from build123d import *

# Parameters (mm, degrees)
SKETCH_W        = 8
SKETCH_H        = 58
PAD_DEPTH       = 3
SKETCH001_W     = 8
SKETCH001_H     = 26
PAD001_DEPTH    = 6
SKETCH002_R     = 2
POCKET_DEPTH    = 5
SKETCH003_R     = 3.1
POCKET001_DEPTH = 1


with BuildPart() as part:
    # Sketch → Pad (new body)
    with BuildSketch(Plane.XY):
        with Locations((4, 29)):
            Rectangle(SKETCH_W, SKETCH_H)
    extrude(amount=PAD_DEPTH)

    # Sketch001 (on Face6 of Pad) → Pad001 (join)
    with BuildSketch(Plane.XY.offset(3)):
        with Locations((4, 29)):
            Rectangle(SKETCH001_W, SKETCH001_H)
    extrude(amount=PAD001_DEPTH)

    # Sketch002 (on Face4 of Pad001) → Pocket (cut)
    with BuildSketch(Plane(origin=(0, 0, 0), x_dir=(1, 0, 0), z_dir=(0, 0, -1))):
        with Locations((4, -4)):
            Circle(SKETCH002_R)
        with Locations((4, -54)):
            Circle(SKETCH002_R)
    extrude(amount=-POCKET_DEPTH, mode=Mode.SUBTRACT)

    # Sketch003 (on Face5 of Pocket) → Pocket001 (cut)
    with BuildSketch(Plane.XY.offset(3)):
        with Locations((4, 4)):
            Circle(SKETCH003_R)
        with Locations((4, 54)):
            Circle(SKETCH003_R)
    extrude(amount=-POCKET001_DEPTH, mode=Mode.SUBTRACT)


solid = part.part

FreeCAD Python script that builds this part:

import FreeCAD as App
import Part
import Sketcher

doc = App.newDocument("Part")
body = doc.addObject("PartDesign::Body", "Body")

sketch1 = doc.addObject("Sketcher::SketchObject", "Sketch")
body.addObject(sketch1)
sketch1.AttachmentSupport = (doc.XY_Plane, [""])
sketch1.MapMode = "FlatFace"
sketch1.addGeometry(Part.LineSegment(App.Vector(0, 58, 0), App.Vector(0, 0, 0)), False)
sketch1.addGeometry(Part.LineSegment(App.Vector(0, 0, 0), App.Vector(8, 0, 0)), False)
sketch1.addGeometry(Part.LineSegment(App.Vector(8, 0, 0), App.Vector(8, 58, 0)), False)
sketch1.addGeometry(Part.LineSegment(App.Vector(8, 58, 0), App.Vector(0, 58, 0)), False)
sketch1.addConstraint(Sketcher.Constraint("Coincident", 0, 2, 1, 1))
sketch1.addConstraint(Sketcher.Constraint("Coincident", 1, 2, 2, 1))
sketch1.addConstraint(Sketcher.Constraint("Coincident", 2, 2, 3, 1))
sketch1.addConstraint(Sketcher.Constraint("Coincident", 3, 2, 0, 1))
sketch1.addConstraint(Sketcher.Constraint("Vertical", 0))
sketch1.addConstraint(Sketcher.Constraint("Horizontal", 1))
sketch1.addConstraint(Sketcher.Constraint("Vertical", 2))
sketch1.addConstraint(Sketcher.Constraint("Horizontal", 3))
sketch1.addConstraint(Sketcher.Constraint("Coincident", 0, 2, -1, 1))
sketch1.addConstraint(Sketcher.Constraint("DistanceX", 1, 1, 1, 2, 8.0))
sketch1.addConstraint(Sketcher.Constraint("DistanceY", 0, 2, 0, 1, 58.0))
pad1 = doc.addObject("PartDesign::Pad", "Pad")
body.addObject(pad1)
pad1.Profile = sketch1
pad1.Length = 3

sketch2 = doc.addObject("Sketcher::SketchObject", "Sketch001")
body.addObject(sketch2)
sketch2.AttachmentSupport = (doc.XY_Plane, [""])
sketch2.MapMode = "FlatFace"
sketch2.AttachmentOffset = App.Placement(App.Vector(0, 0, 3), App.Rotation())
sketch2.addGeometry(Part.LineSegment(App.Vector(0, 42, 0), App.Vector(0, 16, 0)), False)
sketch2.addGeometry(Part.LineSegment(App.Vector(0, 16, 0), App.Vector(8, 16, 0)), False)
sketch2.addGeometry(Part.LineSegment(App.Vector(8, 16, 0), App.Vector(8, 42, 0)), False)
sketch2.addGeometry(Part.LineSegment(App.Vector(8, 42, 0), App.Vector(0, 42, 0)), False)
sketch2.addConstraint(Sketcher.Constraint("Coincident", 0, 2, 1, 1))
sketch2.addConstraint(Sketcher.Constraint("Coincident", 1, 2, 2, 1))
sketch2.addConstraint(Sketcher.Constraint("Coincident", 2, 2, 3, 1))
sketch2.addConstraint(Sketcher.Constraint("Coincident", 3, 2, 0, 1))
sketch2.addConstraint(Sketcher.Constraint("Vertical", 0))
sketch2.addConstraint(Sketcher.Constraint("Horizontal", 1))
sketch2.addConstraint(Sketcher.Constraint("Vertical", 2))
sketch2.addConstraint(Sketcher.Constraint("Horizontal", 3))
sketch2.addConstraint(Sketcher.Constraint("PointOnObject", 0, 2, -2))
sketch2.addConstraint(Sketcher.Constraint("DistanceX", 1, 1, 1, 2, 8.0))
sketch2.addConstraint(Sketcher.Constraint("DistanceY", 0, 2, 0, 1, 26.0))
sketch2.addConstraint(Sketcher.Constraint("DistanceY", -1, 1, 0, 2, 16.0))
pad2 = doc.addObject("PartDesign::Pad", "Pad001")
body.addObject(pad2)
pad2.Profile = sketch2
pad2.Length = 6

sketch3 = doc.addObject("Sketcher::SketchObject", "Sketch002")
body.addObject(sketch3)
sketch3.AttachmentSupport = (doc.XY_Plane, [""])
sketch3.MapMode = "FlatFace"
sketch3.addGeometry(Part.Circle(App.Vector(4, 4, 0), App.Vector(0, 0, 1), 2), False)
sketch3.addGeometry(Part.Circle(App.Vector(4, 54, 0), App.Vector(0, 0, 1), 2), False)
sketch3.addConstraint(Sketcher.Constraint("Equal", 0, 1))
sketch3.addConstraint(Sketcher.Constraint("Vertical", 0, 3, 1, 3))
sketch3.addConstraint(Sketcher.Constraint("Diameter", 0, 4.0))
sketch3.addConstraint(Sketcher.Constraint("DistanceX", -1, 1, 0, 3, 4.0))
sketch3.addConstraint(Sketcher.Constraint("DistanceY", -1, 1, 0, 3, 4.0))
sketch3.addConstraint(Sketcher.Constraint("DistanceY", -1, 1, 1, 3, 54.0))
pocket1 = doc.addObject("PartDesign::Pocket", "Pocket")
body.addObject(pocket1)
pocket1.Profile = sketch3
pocket1.Length = 5
pocket1.Reversed = True

sketch4 = doc.addObject("Sketcher::SketchObject", "Sketch003")
body.addObject(sketch4)
sketch4.AttachmentSupport = (doc.XY_Plane, [""])
sketch4.MapMode = "FlatFace"
sketch4.AttachmentOffset = App.Placement(App.Vector(0, 0, 3), App.Rotation())
sketch4.addGeometry(Part.Circle(App.Vector(4, 4, 0), App.Vector(0, 0, 1), 3.1), False)
sketch4.addGeometry(Part.Circle(App.Vector(4, 54, 0), App.Vector(0, 0, 1), 3.1), False)
sketch4.addConstraint(Sketcher.Constraint("Equal", 0, 1))
sketch4.addConstraint(Sketcher.Constraint("Vertical", 0, 3, 1, 3))
sketch4.addConstraint(Sketcher.Constraint("Diameter", 0, 6.2))
sketch4.addConstraint(Sketcher.Constraint("DistanceX", -1, 1, 0, 3, 4.0))
sketch4.addConstraint(Sketcher.Constraint("DistanceY", -1, 1, 0, 3, 4.0))
sketch4.addConstraint(Sketcher.Constraint("DistanceY", -1, 1, 1, 3, 54.0))
pocket2 = doc.addObject("PartDesign::Pocket", "Pocket001")
body.addObject(pocket2)
pocket2.Profile = sketch4
pocket2.Length = 1

doc.recompute()
